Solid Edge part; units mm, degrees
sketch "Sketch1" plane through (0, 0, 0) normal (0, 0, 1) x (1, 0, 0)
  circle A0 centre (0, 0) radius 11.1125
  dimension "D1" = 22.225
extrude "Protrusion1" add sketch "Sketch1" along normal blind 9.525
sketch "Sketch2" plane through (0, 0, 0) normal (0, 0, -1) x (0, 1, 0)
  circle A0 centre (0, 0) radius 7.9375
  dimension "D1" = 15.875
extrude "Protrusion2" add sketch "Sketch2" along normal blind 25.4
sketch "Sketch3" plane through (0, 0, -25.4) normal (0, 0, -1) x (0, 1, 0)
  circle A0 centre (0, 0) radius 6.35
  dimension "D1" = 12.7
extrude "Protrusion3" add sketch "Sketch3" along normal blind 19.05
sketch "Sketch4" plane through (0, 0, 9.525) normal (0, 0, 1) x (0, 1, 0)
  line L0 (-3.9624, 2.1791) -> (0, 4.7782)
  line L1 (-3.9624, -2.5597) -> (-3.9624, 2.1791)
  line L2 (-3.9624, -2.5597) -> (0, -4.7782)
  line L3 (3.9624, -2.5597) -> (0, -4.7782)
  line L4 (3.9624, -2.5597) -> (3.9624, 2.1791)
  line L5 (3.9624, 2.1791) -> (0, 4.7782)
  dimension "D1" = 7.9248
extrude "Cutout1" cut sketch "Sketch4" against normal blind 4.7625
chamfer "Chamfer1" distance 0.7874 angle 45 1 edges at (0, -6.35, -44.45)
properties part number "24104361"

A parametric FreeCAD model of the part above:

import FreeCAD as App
import Part
import Sketcher
from FreeCAD import Vector
Q = App.Units.Quantity


def edges_at(feature, points):
    """Names of the edges that pass closest to the given points."""
    edges = feature.Shape.Edges
    near = lambda p: min(range(len(edges)), key=lambda i: edges[i].distToShape(Part.Vertex(*p))[0])
    return sorted({f"Edge{near(p) + 1}" for p in points})


def add_polygon(sketch, points):
    """Adds a closed chain of lines whose ends are joined by coincident constraints."""
    first, n = sketch.GeometryCount, len(points)
    for a, b in zip(points, points[1:] + points[:1]):
        sketch.addGeometry(Part.LineSegment(App.Vector(*a, 0), App.Vector(*b, 0)), False)
    for i in range(n):
        sketch.addConstraint(Sketcher.Constraint("Coincident", first + i, 2, first + (i + 1) % n, 1))

doc = App.newDocument("Part")
params = doc.addObject("Spreadsheet::Sheet", "Params")
for row, (alias, value) in enumerate([
    ("sketch1_diameter", "0.875 in"),
    ("pad1_length", "0.375 in"),
    ("sketch2_diameter", "0.625 in"),
    ("pad2_length", "1 in"),
    ("sketch3_diameter", "0.5 in"),
    ("pad3_length", "0.75 in"),
    ("pocket1_length", "0.1875 in"),
    ("chamfer_size", "0.031 in"),
], start=1):
    params.set(f"A{row}", alias)
    params.set(f"B{row}", "=" + value)
    params.setAlias(f"B{row}", alias)

body = doc.addObject("PartDesign::Body", "Body")

sketch1 = doc.addObject("Sketcher::SketchObject", "Sketch")
body.addObject(sketch1)
sketch1.AttachmentSupport = (doc.XY_Plane, [""])
sketch1.MapMode = "FlatFace"
sketch1.addGeometry(Part.Circle(Vector(0, 0, 0), Vector(0, 0, 1), 11.1125), False)
sketch1.addConstraint(Sketcher.Constraint("Coincident", 0, 3, -1, 1))
sketch1.addConstraint(Sketcher.Constraint("Diameter", 0, Q("0.875 in")))
sketch1.setExpression("Constraints[1]", "Params.sketch1_diameter")
pad1 = doc.addObject("PartDesign::Pad", "Pad")
body.addObject(pad1)
pad1.Profile = sketch1
pad1.setExpression("Length", "Params.pad1_length")

sketch2 = doc.addObject("Sketcher::SketchObject", "Sketch001")
body.addObject(sketch2)
sketch2.AttachmentSupport = (doc.XY_Plane, [""])
sketch2.MapMode = "FlatFace"
sketch2.addGeometry(Part.Circle(Vector(0, 0, 0), Vector(0, 0, 1), 7.9375), False)
sketch2.addConstraint(Sketcher.Constraint("Coincident", 0, 3, -1, 1))
sketch2.addConstraint(Sketcher.Constraint("Diameter", 0, Q("0.625 in")))
sketch2.setExpression("Constraints[1]", "Params.sketch2_diameter")
pad2 = doc.addObject("PartDesign::Pad", "Pad001")
body.addObject(pad2)
pad2.Profile = sketch2
pad2.setExpression("Length", "Params.pad2_length")
pad2.Reversed = True

sketch3 = doc.addObject("Sketcher::SketchObject", "Sketch002")
body.addObject(sketch3)
sketch3.AttachmentSupport = (doc.XY_Plane, [""])
sketch3.MapMode = "FlatFace"
sketch3.AttachmentOffset = App.Placement(Vector(0, 0, -1 * 25.4), App.Rotation())
sketch3.addGeometry(Part.Circle(Vector(0, 0, 0), Vector(0, 0, 1), 6.35), False)
sketch3.addConstraint(Sketcher.Constraint("Coincident", 0, 3, -1, 1))
sketch3.addConstraint(Sketcher.Constraint("Diameter", 0, Q("0.5 in")))
sketch3.setExpression("Constraints[1]", "Params.sketch3_diameter")
pad3 = doc.addObject("PartDesign::Pad", "Pad002")
body.addObject(pad3)
pad3.Profile = sketch3
pad3.setExpression("Length", "Params.pad3_length")
pad3.Reversed = True

sketch4 = doc.addObject("Sketcher::SketchObject", "Sketch003")
body.addObject(sketch4)
sketch4.AttachmentSupport = (doc.XY_Plane, [""])
sketch4.MapMode = "FlatFace"
sketch4.AttachmentOffset = App.Placement(Vector(0, 0, 0.375 * 25.4), App.Rotation())
add_polygon(sketch4, [(-4.7782, 0), (-2.1791, -3.9624), (2.5597, -3.9624), (4.7782, 0), (2.5597, 3.9624), (-2.1791, 3.9624)])
sketch4.addConstraint(Sketcher.Constraint("Horizontal", 1))
sketch4.addConstraint(Sketcher.Constraint("Horizontal", 4))
sketch4.addConstraint(Sketcher.Constraint("Symmetric", 2, 2, 5, 2, -1, 1))
sketch4.addConstraint(Sketcher.Constraint("Symmetric", 1, 2, 3, 2, -1))
sketch4.addConstraint(Sketcher.Constraint("PointOnObject", 2, 2, -1))
sketch4.addConstraint(Sketcher.Constraint("Vertical", 0, 2, 4, 2))
sketch4.addConstraint(Sketcher.Constraint("DistanceY", 0, 2, -1, 1, Q("0.156 in")))
sketch4.addConstraint(Sketcher.Constraint("DistanceX", 1, 1, 1, 2, 4.7388))
sketch4.addConstraint(Sketcher.Constraint("DistanceX", 0, 2, -1, 1, Q("0.0858 in")))
sketch4.addConstraint(Sketcher.Constraint("DistanceX", 0, 2, 2, 2, Q("0.2739 in")))
pocket1 = doc.addObject("PartDesign::Pocket", "Pocket")
body.addObject(pocket1)
pocket1.Profile = sketch4
pocket1.setExpression("Length", "Params.pocket1_length")
doc.recompute()

chamfer = doc.addObject("PartDesign::Chamfer", "Chamfer")
body.addObject(chamfer)
chamfer.Base = (pocket1, edges_at(pocket1, [(0, -6.35, -44.45)]))
chamfer.setExpression("Size", "Params.chamfer_size")

doc.recompute()
